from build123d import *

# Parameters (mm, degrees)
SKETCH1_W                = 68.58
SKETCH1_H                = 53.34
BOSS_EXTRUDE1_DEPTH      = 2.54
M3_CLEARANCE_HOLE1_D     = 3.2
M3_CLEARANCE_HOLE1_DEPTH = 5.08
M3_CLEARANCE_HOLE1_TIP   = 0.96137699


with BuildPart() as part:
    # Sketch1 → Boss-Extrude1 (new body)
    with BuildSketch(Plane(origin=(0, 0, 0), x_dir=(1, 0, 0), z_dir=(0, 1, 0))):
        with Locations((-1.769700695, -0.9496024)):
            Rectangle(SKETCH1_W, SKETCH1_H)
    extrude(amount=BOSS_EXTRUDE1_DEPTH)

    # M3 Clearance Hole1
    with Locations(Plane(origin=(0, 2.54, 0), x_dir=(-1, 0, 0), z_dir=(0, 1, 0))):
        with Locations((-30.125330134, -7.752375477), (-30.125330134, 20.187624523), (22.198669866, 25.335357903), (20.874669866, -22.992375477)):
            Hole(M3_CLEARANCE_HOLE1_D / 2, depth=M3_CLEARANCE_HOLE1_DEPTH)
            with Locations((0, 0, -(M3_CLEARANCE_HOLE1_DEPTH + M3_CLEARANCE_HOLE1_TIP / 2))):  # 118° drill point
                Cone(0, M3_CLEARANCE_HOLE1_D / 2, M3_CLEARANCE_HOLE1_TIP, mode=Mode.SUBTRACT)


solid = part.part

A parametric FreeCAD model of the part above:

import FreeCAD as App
import Part
import Sketcher
from FreeCAD import Vector
Q = App.Units.Quantity

doc = App.newDocument("Part")
params = doc.addObject("Spreadsheet::Sheet", "Params")
for row, (alias, value) in enumerate([
    ("sketch1_width", "2.7 in"),
    ("sketch1_height", "2.1 in"),
    ("pad1_length", "0.1 in"),
    ("hole_diameter", "3.2 mm"),
    ("hole_depth", "0.2 in"),
], start=1):
    params.set(f"A{row}", alias)
    params.set(f"B{row}", "=" + value)
    params.setAlias(f"B{row}", alias)

body = doc.addObject("PartDesign::Body", "Body")

sketch1 = body.newObject("Sketcher::SketchObject", "Sketch")
sketch1.AttachmentSupport = (doc.getObject("XZ_Plane"), [""])
sketch1.MapMode = "FlatFace"
sketch1.addGeometry(Part.LineSegment(Vector(-36, -26, 0), Vector(-36, 28, 0)), False)
sketch1.addGeometry(Part.LineSegment(Vector(-36, 28, 0), Vector(33, 28, 0)), False)
sketch1.addGeometry(Part.LineSegment(Vector(33, 28, 0), Vector(33, -26, 0)), False)
sketch1.addGeometry(Part.LineSegment(Vector(33, -26, 0), Vector(-36, -26, 0)), False)
sketch1.addConstraint(Sketcher.Constraint("Coincident", 0, 2, 1, 1))
sketch1.addConstraint(Sketcher.Constraint("Coincident", 1, 2, 2, 1))
sketch1.addConstraint(Sketcher.Constraint("Coincident", 2, 2, 3, 1))
sketch1.addConstraint(Sketcher.Constraint("Coincident", 3, 2, 0, 1))
sketch1.addConstraint(Sketcher.Constraint("Vertical", 0))
sketch1.addConstraint(Sketcher.Constraint("Horizontal", 1))
sketch1.addConstraint(Sketcher.Constraint("Vertical", 2))
sketch1.addConstraint(Sketcher.Constraint("Horizontal", 3))
sketch1.addConstraint(Sketcher.Constraint("DistanceX", 1, 1, 1, 2, Q("2.7 in")))
sketch1.addConstraint(Sketcher.Constraint("DistanceY", 0, 1, 0, 2, Q("2.1 in")))
sketch1.addConstraint(Sketcher.Constraint("DistanceX", 0, 2, -1, 1, 36.059701))
sketch1.addConstraint(Sketcher.Constraint("DistanceY", -1, 1, 0, 2, 27.619602))
sketch1.setExpression("Constraints[8]", "Params.sketch1_width")
sketch1.setExpression("Constraints[9]", "Params.sketch1_height")
pad1 = body.newObject("PartDesign::Pad", "Pad")
pad1.Profile = sketch1
pad1.setExpression("Length", "Params.pad1_length")
pad1.Reversed = True

sketch2 = body.newObject("Sketcher::SketchObject", "Sketch001")
sketch2.AttachmentSupport = (doc.getObject("XZ_Plane"), [""])
sketch2.MapMode = "FlatFace"
sketch2.AttachmentOffset = App.Placement(Vector(0, 0, -0.1 * 25.4), App.Rotation())
sketch2.addGeometry(Part.Circle(Vector(30.1, -7.8, 0), Vector(0, 0, 1), 1.6), False)
sketch2.addGeometry(Part.Circle(Vector(30.1, 20.2, 0), Vector(0, 0, 1), 1.6), False)
sketch2.addGeometry(Part.Circle(Vector(-22.2, 25.3, 0), Vector(0, 0, 1), 1.6), False)
sketch2.addGeometry(Part.Circle(Vector(-20.9, -23, 0), Vector(0, 0, 1), 1.6), False)
sketch2.addConstraint(Sketcher.Constraint("Equal", 0, 1))
sketch2.addConstraint(Sketcher.Constraint("Equal", 1, 2))
sketch2.addConstraint(Sketcher.Constraint("Equal", 2, 3))
sketch2.addConstraint(Sketcher.Constraint("Vertical", 0, 3, 1, 3))
sketch2.addConstraint(Sketcher.Constraint("DistanceY", 0, 3, 1, 3, Q("1.1 in")))
sketch2.addConstraint(Sketcher.Constraint("DistanceY", 3, 3, 0, 3, Q("0.6 in")))
sketch2.addConstraint(Sketcher.Constraint("Diameter", 0, 3.2))
sketch2.addConstraint(Sketcher.Constraint("DistanceX", 2, 3, 1, 3, Q("2.06 in")))
sketch2.addConstraint(Sketcher.Constraint("DistanceX", 2, 3, 3, 3, 1.324))
sketch2.addConstraint(Sketcher.Constraint("DistanceX", -1, 1, 0, 3, 30.12533))
sketch2.addConstraint(Sketcher.Constraint("DistanceY", 0, 3, -1, 1, 7.752375))
sketch2.addConstraint(Sketcher.Constraint("DistanceY", -1, 1, 2, 3, 25.335358))
doc.recompute()
hole = body.newObject("PartDesign::Hole", "Hole")
hole.Profile = sketch2
hole.ThreadType = "None"
hole.setExpression("Diameter", "Params.hole_diameter")
hole.DepthType = "Dimension"
hole.setExpression("Depth", "Params.hole_depth")
hole.DrillPoint = "Angled"
hole.DrillPointAngle = 118
hole.Reversed = True

doc.recompute()
